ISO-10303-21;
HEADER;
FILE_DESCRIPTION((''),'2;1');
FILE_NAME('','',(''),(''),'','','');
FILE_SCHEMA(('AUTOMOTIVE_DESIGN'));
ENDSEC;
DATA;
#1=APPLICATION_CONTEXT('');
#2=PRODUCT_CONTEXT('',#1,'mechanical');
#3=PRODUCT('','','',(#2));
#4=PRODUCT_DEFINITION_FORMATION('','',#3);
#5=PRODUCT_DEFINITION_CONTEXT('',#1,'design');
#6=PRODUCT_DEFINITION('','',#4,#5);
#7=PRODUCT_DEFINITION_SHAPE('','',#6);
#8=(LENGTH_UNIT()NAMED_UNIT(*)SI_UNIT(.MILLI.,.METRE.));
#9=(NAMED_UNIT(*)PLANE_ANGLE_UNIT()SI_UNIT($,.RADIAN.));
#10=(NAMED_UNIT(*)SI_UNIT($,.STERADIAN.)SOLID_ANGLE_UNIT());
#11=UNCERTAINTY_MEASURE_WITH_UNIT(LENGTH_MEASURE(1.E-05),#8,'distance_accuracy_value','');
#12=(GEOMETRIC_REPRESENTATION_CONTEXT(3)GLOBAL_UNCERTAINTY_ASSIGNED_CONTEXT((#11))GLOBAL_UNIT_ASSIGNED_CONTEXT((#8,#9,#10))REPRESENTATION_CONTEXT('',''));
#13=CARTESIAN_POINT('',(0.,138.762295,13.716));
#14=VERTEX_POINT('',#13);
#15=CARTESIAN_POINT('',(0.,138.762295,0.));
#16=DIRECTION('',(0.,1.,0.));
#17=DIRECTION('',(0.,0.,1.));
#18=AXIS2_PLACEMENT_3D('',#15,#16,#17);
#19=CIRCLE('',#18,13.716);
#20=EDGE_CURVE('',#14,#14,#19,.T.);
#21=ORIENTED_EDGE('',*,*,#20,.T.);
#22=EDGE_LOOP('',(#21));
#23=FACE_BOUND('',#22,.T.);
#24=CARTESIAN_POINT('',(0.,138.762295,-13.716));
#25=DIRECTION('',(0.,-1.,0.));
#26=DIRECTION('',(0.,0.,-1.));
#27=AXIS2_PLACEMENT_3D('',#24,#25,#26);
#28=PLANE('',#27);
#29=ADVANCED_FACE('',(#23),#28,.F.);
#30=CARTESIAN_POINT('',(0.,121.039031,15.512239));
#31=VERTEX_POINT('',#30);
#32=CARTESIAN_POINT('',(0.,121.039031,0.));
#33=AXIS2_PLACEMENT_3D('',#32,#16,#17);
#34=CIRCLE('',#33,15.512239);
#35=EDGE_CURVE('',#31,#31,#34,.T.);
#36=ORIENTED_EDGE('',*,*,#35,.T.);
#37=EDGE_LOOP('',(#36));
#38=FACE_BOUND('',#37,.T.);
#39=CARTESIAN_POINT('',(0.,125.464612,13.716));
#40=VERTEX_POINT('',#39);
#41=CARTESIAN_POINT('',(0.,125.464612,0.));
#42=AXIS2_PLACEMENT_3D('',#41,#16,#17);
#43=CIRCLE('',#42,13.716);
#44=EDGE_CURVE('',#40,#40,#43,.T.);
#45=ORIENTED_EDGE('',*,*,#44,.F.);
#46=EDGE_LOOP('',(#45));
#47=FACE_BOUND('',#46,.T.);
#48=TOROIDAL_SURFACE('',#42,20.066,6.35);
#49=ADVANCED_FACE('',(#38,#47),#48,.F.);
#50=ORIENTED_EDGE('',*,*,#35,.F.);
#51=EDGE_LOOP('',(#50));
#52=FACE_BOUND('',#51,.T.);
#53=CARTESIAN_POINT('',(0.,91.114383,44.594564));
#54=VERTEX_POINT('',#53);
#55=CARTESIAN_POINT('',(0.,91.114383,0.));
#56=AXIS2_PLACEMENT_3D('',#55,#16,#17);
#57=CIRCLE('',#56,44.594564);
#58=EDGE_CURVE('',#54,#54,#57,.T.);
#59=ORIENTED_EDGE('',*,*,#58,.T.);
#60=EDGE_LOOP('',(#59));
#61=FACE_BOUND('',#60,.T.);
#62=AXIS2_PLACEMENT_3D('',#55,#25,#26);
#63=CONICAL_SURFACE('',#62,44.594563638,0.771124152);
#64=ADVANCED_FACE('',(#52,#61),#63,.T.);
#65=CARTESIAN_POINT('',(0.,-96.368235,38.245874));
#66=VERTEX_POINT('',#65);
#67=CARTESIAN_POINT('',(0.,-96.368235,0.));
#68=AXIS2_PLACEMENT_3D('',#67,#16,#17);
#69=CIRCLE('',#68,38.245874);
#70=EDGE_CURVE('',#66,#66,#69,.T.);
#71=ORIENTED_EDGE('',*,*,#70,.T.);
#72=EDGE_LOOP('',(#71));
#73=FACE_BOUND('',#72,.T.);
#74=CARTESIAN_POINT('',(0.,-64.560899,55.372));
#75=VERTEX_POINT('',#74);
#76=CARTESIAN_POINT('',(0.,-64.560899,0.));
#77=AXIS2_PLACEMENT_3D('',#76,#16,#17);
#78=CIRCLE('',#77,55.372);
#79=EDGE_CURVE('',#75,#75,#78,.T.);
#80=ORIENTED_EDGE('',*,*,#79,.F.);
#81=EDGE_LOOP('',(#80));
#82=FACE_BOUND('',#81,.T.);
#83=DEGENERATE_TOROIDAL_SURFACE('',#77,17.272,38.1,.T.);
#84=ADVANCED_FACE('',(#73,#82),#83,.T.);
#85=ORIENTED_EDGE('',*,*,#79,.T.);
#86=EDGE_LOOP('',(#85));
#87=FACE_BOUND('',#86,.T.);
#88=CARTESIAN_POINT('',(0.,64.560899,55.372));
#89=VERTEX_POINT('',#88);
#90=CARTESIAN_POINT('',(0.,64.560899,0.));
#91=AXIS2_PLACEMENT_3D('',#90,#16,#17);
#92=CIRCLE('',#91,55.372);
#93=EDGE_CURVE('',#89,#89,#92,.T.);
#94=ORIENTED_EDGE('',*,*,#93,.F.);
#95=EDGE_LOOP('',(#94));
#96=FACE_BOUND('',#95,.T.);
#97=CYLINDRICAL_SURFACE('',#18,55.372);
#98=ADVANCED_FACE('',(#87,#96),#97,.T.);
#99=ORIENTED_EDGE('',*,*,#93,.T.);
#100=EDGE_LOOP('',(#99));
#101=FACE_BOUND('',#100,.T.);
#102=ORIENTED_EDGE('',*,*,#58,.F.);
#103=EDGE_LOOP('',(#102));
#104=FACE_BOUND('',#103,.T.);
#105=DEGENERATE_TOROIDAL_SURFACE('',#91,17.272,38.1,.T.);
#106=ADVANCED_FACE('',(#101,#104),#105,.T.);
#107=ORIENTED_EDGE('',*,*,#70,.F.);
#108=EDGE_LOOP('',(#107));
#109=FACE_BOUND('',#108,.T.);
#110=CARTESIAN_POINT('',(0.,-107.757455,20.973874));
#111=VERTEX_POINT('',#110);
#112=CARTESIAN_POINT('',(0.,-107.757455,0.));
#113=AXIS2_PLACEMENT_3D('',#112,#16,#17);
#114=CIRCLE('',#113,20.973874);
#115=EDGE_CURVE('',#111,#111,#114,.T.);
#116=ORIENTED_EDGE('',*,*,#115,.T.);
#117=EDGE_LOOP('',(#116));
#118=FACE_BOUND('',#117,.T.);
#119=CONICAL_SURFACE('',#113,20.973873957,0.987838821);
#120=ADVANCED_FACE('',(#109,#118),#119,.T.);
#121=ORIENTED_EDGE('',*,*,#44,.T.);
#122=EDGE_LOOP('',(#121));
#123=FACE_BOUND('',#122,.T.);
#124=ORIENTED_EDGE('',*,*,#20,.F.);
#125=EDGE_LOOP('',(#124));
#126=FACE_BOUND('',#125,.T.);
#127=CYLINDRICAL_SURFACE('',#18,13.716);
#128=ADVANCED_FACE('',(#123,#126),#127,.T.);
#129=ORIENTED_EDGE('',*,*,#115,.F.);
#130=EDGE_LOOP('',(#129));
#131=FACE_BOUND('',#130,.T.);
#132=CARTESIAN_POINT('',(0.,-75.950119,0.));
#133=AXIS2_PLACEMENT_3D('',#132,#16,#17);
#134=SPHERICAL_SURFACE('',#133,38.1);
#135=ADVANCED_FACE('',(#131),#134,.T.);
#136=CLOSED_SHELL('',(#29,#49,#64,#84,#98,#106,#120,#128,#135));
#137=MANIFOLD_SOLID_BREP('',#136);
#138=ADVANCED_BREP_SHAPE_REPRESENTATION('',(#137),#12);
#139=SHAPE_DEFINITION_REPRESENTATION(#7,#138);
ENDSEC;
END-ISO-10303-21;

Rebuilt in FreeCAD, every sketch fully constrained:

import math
import FreeCAD as App
import Part
import Sketcher
Q = App.Units.Quantity

doc = App.newDocument("Part")
body = doc.addObject("PartDesign::Body", "Body")

sketch1 = body.newObject("Sketcher::SketchObject", "Sketch")
sketch1.AttachmentSupport = (doc.getObject("YZ_Plane"), [""])
sketch1.MapMode = "FlatFace"
sketch1.addGeometry(Part.LineSegment(App.Vector(-64.6, -55.4, 0), App.Vector(64.6, -55.4, 0)), False)
sketch1.addGeometry(Part.ArcOfCircle(Part.Circle(App.Vector(64.6, -17.3, 0), App.Vector(0, 0, 1), 38.1), math.radians(-90), math.radians(-46)), False)
sketch1.addGeometry(Part.LineSegment(App.Vector(91.1, -44.6, 0), App.Vector(121, -15.5, 0)), False)
sketch1.addGeometry(Part.ArcOfCircle(Part.Circle(App.Vector(125.5, -20.1, 0), App.Vector(0, 0, 1), 6.3), math.radians(90), math.radians(134)), False)
sketch1.addGeometry(Part.LineSegment(App.Vector(125.5, -13.7, 0), App.Vector(138.8, -13.7, 0)), False)
sketch1.addGeometry(Part.LineSegment(App.Vector(138.8, -13.7, 0), App.Vector(138.8, 0, 0)), False)
sketch1.addGeometry(Part.LineSegment(App.Vector(138.8, 0, 0), App.Vector(-114.1, 0, 0)), False)
sketch1.addGeometry(Part.ArcOfCircle(Part.Circle(App.Vector(-76, 0, 0), App.Vector(0, 0, 1), 38.1), math.radians(-180), math.radians(-147)), False)
sketch1.addGeometry(Part.LineSegment(App.Vector(-107.8, -21, 0), App.Vector(-96.4, -38.2, 0)), False)
sketch1.addGeometry(Part.ArcOfCircle(Part.Circle(App.Vector(-64.6, -17.3, 0), App.Vector(0, 0, 1), 38.1), math.radians(-147), math.radians(-90)), False)
sketch1.addConstraint(Sketcher.Constraint("Tangent", 0, 2, 1, 1))
sketch1.addConstraint(Sketcher.Constraint("Tangent", 1, 2, 2, 1))
sketch1.addConstraint(Sketcher.Constraint("Tangent", 2, 2, 3, 2))
sketch1.addConstraint(Sketcher.Constraint("Tangent", 3, 1, 4, 1))
sketch1.addConstraint(Sketcher.Constraint("Coincident", 4, 2, 5, 1))
sketch1.addConstraint(Sketcher.Constraint("Coincident", 5, 2, 6, 1))
sketch1.addConstraint(Sketcher.Constraint("Coincident", 6, 2, 7, 1))
sketch1.addConstraint(Sketcher.Constraint("Tangent", 7, 2, 8, 1))
sketch1.addConstraint(Sketcher.Constraint("Tangent", 8, 2, 9, 1))
sketch1.addConstraint(Sketcher.Constraint("Tangent", 9, 2, 0, 1))
sketch1.addConstraint(Sketcher.Constraint("Horizontal", 0))
sketch1.addConstraint(Sketcher.Constraint("Horizontal", 4))
sketch1.addConstraint(Sketcher.Constraint("Vertical", 5))
sketch1.addConstraint(Sketcher.Constraint("Horizontal", 6))
sketch1.addConstraint(Sketcher.Constraint("Equal", 1, 7))
sketch1.addConstraint(Sketcher.Constraint("Equal", 7, 9))
sketch1.addConstraint(Sketcher.Constraint("PointOnObject", 7, 3, -1))
sketch1.addConstraint(Sketcher.Constraint("PointOnObject", 5, 2, -1))
sketch1.addConstraint(Sketcher.Constraint("Radius", 1, Q("1.5 in")))
sketch1.addConstraint(Sketcher.Constraint("Radius", 3, Q("0.25 in")))
sketch1.addConstraint(Sketcher.Constraint("DistanceY", 5, 1, 5, 2, Q("0.54 in")))
sketch1.addConstraint(Sketcher.Constraint("DistanceY", 1, 3, -1, 1, Q("0.68 in")))
sketch1.addConstraint(Sketcher.Constraint("DistanceX", 0, 1, 0, 2, Q("129.121798 mm")))
sketch1.addConstraint(Sketcher.Constraint("DistanceX", -1, 1, 1, 3, Q("64.560899 mm")))
sketch1.addConstraint(Sketcher.Constraint("Distance", 2, Q("41.728481 mm")))
sketch1.addConstraint(Sketcher.Constraint("Distance", 8, Q("20.689039 mm")))
sketch1.addConstraint(Sketcher.Constraint("DistanceX", 4, 1, 4, 2, Q("13.297684 mm")))
revolution = body.newObject("PartDesign::Revolution", "Revolution")
revolution.Profile = sketch1
revolution.ReferenceAxis = (sketch1, ["H_Axis"])
revolution.Angle = 360

doc.recompute()
